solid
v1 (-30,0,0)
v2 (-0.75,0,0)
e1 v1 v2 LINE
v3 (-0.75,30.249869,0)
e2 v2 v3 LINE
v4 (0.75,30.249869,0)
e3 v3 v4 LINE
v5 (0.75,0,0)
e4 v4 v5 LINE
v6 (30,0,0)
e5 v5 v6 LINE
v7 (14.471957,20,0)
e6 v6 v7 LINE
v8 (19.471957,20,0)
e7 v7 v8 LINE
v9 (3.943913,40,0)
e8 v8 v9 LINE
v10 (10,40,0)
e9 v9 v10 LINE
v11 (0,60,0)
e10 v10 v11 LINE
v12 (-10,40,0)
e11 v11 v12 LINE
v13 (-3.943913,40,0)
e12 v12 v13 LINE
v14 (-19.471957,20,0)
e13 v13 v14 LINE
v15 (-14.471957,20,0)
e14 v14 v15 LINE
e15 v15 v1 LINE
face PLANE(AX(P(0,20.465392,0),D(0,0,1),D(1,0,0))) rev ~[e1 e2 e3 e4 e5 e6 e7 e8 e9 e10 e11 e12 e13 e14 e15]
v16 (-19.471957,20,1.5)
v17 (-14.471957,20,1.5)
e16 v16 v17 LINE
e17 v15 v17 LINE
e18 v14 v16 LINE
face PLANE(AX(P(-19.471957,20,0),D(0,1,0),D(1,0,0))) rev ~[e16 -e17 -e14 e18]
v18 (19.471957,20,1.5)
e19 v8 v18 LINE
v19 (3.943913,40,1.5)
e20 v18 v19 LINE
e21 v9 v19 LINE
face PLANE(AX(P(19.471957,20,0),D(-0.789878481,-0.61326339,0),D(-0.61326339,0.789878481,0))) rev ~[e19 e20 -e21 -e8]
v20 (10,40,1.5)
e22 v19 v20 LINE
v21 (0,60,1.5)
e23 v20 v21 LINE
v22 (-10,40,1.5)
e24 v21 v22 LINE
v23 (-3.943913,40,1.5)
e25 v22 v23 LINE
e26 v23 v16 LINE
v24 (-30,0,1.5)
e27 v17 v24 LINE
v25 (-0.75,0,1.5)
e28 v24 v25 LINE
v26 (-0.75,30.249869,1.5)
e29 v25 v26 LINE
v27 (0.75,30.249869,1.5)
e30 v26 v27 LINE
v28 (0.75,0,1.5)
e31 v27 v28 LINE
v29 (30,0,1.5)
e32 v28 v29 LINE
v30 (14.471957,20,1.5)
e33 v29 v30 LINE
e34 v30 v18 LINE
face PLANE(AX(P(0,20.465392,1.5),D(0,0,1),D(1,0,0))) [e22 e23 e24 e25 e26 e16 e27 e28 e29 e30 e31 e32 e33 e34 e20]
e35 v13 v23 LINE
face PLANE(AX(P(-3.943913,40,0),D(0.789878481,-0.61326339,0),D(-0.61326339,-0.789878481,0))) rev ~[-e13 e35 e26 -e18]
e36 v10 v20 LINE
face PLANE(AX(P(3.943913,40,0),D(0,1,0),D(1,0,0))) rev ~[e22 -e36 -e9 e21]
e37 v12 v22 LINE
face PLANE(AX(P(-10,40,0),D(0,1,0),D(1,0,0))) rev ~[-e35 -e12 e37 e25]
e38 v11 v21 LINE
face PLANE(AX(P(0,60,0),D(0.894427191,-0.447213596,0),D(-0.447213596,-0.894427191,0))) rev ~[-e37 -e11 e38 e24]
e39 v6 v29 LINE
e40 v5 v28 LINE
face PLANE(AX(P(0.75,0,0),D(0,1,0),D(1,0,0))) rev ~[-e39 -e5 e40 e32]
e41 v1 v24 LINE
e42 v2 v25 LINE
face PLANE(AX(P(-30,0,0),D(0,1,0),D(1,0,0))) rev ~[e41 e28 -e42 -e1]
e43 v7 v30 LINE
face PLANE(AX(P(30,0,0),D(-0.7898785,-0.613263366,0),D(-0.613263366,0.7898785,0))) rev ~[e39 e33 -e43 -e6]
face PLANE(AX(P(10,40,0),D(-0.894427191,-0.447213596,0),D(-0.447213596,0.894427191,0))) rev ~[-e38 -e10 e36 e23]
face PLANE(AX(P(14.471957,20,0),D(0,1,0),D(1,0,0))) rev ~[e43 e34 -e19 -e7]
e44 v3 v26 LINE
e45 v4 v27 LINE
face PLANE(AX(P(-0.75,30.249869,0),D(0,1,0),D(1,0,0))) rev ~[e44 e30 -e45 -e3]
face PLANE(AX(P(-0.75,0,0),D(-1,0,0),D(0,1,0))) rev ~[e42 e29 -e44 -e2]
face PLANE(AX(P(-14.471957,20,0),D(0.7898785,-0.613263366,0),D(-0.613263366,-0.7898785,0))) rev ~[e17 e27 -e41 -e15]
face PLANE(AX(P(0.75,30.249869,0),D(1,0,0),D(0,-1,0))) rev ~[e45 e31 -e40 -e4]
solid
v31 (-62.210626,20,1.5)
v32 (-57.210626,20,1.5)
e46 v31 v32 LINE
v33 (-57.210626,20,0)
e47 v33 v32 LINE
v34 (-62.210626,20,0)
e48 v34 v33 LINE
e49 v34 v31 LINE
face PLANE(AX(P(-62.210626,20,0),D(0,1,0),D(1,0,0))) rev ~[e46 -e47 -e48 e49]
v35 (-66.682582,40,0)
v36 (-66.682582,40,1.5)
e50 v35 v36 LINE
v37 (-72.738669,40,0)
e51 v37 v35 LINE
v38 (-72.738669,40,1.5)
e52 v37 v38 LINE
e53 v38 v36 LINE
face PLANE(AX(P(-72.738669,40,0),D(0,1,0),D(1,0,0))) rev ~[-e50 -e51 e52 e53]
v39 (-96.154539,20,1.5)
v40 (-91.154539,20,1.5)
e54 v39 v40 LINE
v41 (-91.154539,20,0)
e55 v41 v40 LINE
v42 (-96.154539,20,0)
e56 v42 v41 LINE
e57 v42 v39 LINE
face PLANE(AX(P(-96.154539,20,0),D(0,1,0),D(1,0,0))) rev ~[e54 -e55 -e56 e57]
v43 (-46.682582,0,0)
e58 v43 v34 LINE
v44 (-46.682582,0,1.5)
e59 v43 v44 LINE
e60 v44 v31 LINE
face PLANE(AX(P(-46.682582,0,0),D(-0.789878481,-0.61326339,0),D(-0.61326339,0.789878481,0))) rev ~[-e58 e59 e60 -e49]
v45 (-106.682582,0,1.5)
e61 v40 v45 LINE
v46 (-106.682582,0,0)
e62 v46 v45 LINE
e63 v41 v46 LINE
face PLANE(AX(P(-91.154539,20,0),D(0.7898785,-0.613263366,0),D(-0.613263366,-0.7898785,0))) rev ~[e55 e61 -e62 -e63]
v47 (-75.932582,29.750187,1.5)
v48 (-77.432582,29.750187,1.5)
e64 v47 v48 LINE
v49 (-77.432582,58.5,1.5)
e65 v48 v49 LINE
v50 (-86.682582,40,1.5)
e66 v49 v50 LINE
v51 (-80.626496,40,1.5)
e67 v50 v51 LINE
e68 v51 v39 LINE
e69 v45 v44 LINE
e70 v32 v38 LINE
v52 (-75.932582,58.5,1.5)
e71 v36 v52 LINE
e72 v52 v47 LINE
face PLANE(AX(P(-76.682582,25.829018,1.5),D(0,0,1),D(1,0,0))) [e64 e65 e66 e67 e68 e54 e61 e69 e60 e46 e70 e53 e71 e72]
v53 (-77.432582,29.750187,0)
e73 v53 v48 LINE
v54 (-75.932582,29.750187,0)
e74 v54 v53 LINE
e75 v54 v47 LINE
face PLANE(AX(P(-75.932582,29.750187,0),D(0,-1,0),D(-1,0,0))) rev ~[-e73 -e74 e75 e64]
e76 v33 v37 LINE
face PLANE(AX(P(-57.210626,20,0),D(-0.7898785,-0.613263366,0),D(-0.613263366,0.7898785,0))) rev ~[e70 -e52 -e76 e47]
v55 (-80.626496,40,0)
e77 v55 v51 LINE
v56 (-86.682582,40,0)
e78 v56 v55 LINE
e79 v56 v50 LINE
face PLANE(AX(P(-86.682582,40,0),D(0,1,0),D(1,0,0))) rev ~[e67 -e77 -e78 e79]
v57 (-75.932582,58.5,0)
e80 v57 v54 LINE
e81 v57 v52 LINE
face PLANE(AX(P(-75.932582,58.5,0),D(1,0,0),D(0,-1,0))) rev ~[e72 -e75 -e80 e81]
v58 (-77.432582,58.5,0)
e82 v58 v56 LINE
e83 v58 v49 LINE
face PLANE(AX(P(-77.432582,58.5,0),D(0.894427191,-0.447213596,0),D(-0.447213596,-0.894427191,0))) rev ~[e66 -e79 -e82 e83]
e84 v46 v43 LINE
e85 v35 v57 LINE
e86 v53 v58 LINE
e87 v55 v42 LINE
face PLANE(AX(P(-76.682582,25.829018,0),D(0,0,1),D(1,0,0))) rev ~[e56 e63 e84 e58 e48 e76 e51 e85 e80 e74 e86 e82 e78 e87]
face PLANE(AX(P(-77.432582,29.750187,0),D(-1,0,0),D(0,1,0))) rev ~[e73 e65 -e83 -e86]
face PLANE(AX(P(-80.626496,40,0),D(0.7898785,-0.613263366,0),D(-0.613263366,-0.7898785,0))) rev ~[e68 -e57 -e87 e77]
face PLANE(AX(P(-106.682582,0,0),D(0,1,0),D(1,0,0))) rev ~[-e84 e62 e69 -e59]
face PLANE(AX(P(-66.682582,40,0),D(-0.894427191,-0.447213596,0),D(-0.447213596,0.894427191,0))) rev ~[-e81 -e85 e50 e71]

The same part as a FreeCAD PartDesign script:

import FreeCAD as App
import Part
import Sketcher


def add_polygon(sketch, points):
    """Adds a closed chain of lines whose ends are joined by coincident constraints."""
    first, n = sketch.GeometryCount, len(points)
    for a, b in zip(points, points[1:] + points[:1]):
        sketch.addGeometry(Part.LineSegment(App.Vector(*a, 0), App.Vector(*b, 0)), False)
    for i in range(n):
        sketch.addConstraint(Sketcher.Constraint("Coincident", first + i, 2, first + (i + 1) % n, 1))

doc = App.newDocument("Part")
body = doc.addObject("PartDesign::Body", "Body")
body.AllowCompound = True

# Sketch on XY plane
sketch1 = body.newObject("Sketcher::SketchObject", "Sketch")
sketch1.AttachmentSupport = (doc.getObject("XY_Plane"), [""])
sketch1.MapMode = "FlatFace"
add_polygon(sketch1, [(-57.2, 20), (-72.7, 40), (-66.7, 40), (-75.9, 58.5), (-75.9, 29.8), (-77.4, 29.8), (-77.4, 58.5), (-86.7, 40), (-80.6, 40), (-96.2, 20), (-91.2, 20), (-106.7, 0), (-46.7, 0), (-62.2, 20)])  # lines 0-13
add_polygon(sketch1, [(0.8, 0), (30, 0), (14.5, 20), (19.5, 20), (3.9, 40), (10, 40), (0, 60), (-10, 40), (-3.9, 40), (-19.5, 20), (-14.5, 20), (-30, 0), (-0.8, 0), (-0.8, 30.2), (0.8, 30.2)])  # lines 14-28
sketch1.addConstraint([
    Sketcher.Constraint("Horizontal", 1),
    Sketcher.Constraint("Vertical", 3),
    Sketcher.Constraint("Horizontal", 4),
    Sketcher.Constraint("Vertical", 5),
    Sketcher.Constraint("Horizontal", 7),
    Sketcher.Constraint("Horizontal", 9),
    Sketcher.Constraint("Horizontal", 11),
    Sketcher.Constraint("Horizontal", 13),
    Sketcher.Constraint("Horizontal", 14),
    Sketcher.Constraint("Horizontal", 16),
    Sketcher.Constraint("Horizontal", 18),
    Sketcher.Constraint("Horizontal", 21),
    Sketcher.Constraint("Horizontal", 23),
    Sketcher.Constraint("Horizontal", 25),
    Sketcher.Constraint("Vertical", 26),
    Sketcher.Constraint("Horizontal", 27),
    Sketcher.Constraint("Vertical", 28),
    Sketcher.Constraint("Symmetric", 14, 2, 24, 2, -1, 1),
    Sketcher.Constraint("Symmetric", 18, 2, 20, 2, -2),
    Sketcher.Constraint("Symmetric", 16, 2, 22, 2, -2),
    Sketcher.Constraint("Symmetric", 25, 2, 28, 2, -2),
    Sketcher.Constraint("PointOnObject", 10, 2, -1),
    Sketcher.Constraint("PointOnObject", 19, 2, -2),
    Sketcher.Constraint("Parallel", 8, 10),
    Sketcher.Constraint("Parallel", 0, 12),
    Sketcher.Constraint("Parallel", 12, 15),
    Sketcher.Constraint("Parallel", 15, 17),
    Sketcher.Constraint("Parallel", 2, 19),
    Sketcher.Constraint("Parallel", 6, 20),
    Sketcher.Constraint("Parallel", 10, 22),
    Sketcher.Constraint("Parallel", 22, 24),
    Sketcher.Constraint("Horizontal", 2, 2, 5, 2),
    Sketcher.Constraint("Horizontal", 1, 2, 6, 2),
    Sketcher.Constraint("Horizontal", 9, 2, 12, 2),
    Sketcher.Constraint("Horizontal", 13, 2, 15, 2),
    Sketcher.Constraint("Horizontal", 7, 2, 17, 2),
    Sketcher.Constraint("Equal", 1, 7),
    Sketcher.Constraint("Equal", 9, 13),
    Sketcher.Constraint("Equal", 13, 16),
    Sketcher.Constraint("Equal", 7, 18),
    Sketcher.Constraint("Equal", 18, 21),
    Sketcher.Constraint("Equal", 4, 27),
    Sketcher.Constraint("Equal", 8, 10),
    Sketcher.Constraint("DistanceX", 9, 1, 9, 2, 5.0),
    Sketcher.Constraint("DistanceX", 11, 1, 11, 2, 60.0),
    Sketcher.Constraint("DistanceX", 4, 2, 4, 1, 1.5),
    Sketcher.Constraint("DistanceY", -1, 1, 0, 2, 40.0),
    Sketcher.Constraint("DistanceX", -1, 1, 14, 2, 30.0),
    Sketcher.Constraint("DistanceX", -1, 1, 18, 2, 10.0),
    Sketcher.Constraint("DistanceY", -1, 1, 19, 2, 60.0),
    Sketcher.Constraint("DistanceY", 26, 1, 26, 2, 30.249869),
    Sketcher.Constraint("Distance", 0, 25.32035),
    Sketcher.Constraint("DistanceY", 3, 2, 3, 1, 28.749813),
    Sketcher.Constraint("DistanceX", 0, 2, -1, 1, 72.738669),
])
pad1 = body.newObject("PartDesign::Pad", "Pad")
pad1.Profile = sketch1
pad1.Length = 1.5

doc.recompute()
